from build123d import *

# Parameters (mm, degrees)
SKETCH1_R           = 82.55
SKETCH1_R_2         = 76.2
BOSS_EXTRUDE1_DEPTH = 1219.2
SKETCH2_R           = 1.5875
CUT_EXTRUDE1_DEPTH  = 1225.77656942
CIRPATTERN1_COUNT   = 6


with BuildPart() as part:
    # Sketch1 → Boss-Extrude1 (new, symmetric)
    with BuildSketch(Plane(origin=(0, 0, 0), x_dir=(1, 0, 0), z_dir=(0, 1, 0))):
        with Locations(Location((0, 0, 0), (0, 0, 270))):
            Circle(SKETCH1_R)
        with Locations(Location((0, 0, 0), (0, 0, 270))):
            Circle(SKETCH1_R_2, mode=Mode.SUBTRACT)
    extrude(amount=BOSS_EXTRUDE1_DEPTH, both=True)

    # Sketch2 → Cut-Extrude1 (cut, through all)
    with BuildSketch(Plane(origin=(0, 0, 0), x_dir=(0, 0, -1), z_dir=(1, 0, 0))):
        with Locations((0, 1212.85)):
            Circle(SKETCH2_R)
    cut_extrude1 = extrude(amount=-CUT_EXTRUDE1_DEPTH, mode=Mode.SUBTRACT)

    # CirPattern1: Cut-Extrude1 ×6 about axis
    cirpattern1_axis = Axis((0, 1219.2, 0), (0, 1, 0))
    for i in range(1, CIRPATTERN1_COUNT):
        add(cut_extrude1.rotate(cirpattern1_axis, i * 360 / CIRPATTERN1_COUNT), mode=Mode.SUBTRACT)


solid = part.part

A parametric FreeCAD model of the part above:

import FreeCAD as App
import Part
import Sketcher
from FreeCAD import Vector
Q = App.Units.Quantity

doc = App.newDocument("Part")
body = doc.addObject("PartDesign::Body", "Body")

# Sketch on XZ plane
sketch1 = body.newObject("Sketcher::SketchObject", "Sketch")
sketch1.AttachmentSupport = (doc.getObject("XZ_Plane"), [""])
sketch1.MapMode = "FlatFace"
sketch1.addGeometry([
    Part.Circle(Vector(0, 0, 0), Vector(0, 0, 1), 83),
    Part.Circle(Vector(0, 0, 0), Vector(0, 0, 1), 76),
], False)
sketch1.addConstraint([
    Sketcher.Constraint("Coincident", 0, 3, -1, 1),
    Sketcher.Constraint("Coincident", 1, 3, -1, 1),
    Sketcher.Constraint("Diameter", 1, Q("6 in")),
    Sketcher.Constraint("Diameter", 0, Q("6.5 in")),
])
pad1 = body.newObject("PartDesign::Pad", "Pad")
pad1.Profile = sketch1
pad1.Length = Q("96 in")
pad1.Midplane = True

# Sketch on YZ plane
sketch2 = body.newObject("Sketcher::SketchObject", "Sketch001")
sketch2.AttachmentSupport = (doc.getObject("YZ_Plane"), [""])
sketch2.MapMode = "FlatFace"
sketch2.addGeometry(Part.Circle(Vector(1212.8, 0, 0), Vector(0, 0, 1), 1.6), False)
sketch2.addConstraint([
    Sketcher.Constraint("PointOnObject", 0, 3, -1),
    Sketcher.Constraint("Diameter", 0, Q("0.125 in")),
    Sketcher.Constraint("DistanceX", -1, 1, 0, 3, Q("47.75 in")),
])
pocket1 = body.newObject("PartDesign::Pocket", "Pocket")
pocket1.Profile = sketch2
pocket1.Type = "ThroughAll"
doc.recompute()

polarpattern = body.newObject("PartDesign::PolarPattern", "PolarPattern")
polarpattern.Originals = [pocket1]
polarpattern.Axis = (doc.getObject("Y_Axis"), [""])
polarpattern.Angle = 360
polarpattern.Occurrences = 6
body.Tip = polarpattern

doc.recompute()
